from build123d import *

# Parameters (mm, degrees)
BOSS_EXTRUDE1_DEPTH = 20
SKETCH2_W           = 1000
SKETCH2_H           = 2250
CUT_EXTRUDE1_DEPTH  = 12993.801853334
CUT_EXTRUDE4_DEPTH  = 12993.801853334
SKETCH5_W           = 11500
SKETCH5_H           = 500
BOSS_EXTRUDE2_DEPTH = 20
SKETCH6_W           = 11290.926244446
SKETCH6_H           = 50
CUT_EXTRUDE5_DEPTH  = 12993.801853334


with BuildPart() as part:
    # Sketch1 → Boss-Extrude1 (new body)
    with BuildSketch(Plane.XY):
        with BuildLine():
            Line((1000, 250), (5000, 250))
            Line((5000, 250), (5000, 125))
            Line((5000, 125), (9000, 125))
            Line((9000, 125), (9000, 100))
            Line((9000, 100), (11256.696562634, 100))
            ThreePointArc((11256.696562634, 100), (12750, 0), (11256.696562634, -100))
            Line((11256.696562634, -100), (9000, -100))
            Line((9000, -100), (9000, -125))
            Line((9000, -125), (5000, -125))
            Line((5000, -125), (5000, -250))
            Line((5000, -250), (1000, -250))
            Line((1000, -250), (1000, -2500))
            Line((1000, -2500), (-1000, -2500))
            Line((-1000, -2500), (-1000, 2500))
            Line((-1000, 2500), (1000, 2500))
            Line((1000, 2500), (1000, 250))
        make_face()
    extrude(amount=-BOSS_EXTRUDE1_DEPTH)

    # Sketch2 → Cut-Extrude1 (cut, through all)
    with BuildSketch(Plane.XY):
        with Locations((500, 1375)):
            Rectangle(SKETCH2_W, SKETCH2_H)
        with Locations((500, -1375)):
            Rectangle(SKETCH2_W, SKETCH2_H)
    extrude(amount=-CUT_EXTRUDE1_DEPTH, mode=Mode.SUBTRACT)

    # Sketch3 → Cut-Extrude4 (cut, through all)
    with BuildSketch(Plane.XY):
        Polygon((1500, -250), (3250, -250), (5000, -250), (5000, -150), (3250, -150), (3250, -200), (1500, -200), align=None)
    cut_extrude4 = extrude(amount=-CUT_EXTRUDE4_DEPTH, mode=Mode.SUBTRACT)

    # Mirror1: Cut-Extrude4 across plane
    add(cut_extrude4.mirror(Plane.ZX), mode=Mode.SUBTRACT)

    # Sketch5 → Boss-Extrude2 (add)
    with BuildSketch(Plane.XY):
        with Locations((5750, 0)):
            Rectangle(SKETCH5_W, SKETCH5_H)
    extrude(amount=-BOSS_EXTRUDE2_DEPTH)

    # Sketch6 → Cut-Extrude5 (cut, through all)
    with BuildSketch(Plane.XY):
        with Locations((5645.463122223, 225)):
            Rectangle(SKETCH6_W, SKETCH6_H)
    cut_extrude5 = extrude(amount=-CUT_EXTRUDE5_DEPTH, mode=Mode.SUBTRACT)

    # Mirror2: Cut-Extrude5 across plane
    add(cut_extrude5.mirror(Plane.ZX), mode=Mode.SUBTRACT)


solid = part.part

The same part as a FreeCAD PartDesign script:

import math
import FreeCAD as App
import Part
import Sketcher

V = App.Vector


def add_polygon(sketch, points):
    """Adds a closed chain of lines whose ends are joined by coincident constraints."""
    first, n = sketch.GeometryCount, len(points)
    for a, b in zip(points, points[1:] + points[:1]):
        sketch.addGeometry(Part.LineSegment(App.Vector(*a, 0), App.Vector(*b, 0)), False)
    for i in range(n):
        sketch.addConstraint(Sketcher.Constraint("Coincident", first + i, 2, first + (i + 1) % n, 1))

doc = App.newDocument("Part")
body = doc.addObject("PartDesign::Body", "Body")

sketch1 = doc.addObject("Sketcher::SketchObject", "Sketch")
body.addObject(sketch1)
sketch1.AttachmentSupport = (doc.XY_Plane, [""])
sketch1.MapMode = "FlatFace"
sketch1.addGeometry(Part.LineSegment(V(5000, 250, 0), V(1000, 250, 0)), False)
sketch1.addGeometry(Part.LineSegment(V(1000, 250, 0), V(1000, 2500, 0)), False)
sketch1.addGeometry(Part.LineSegment(V(1000, 2500, 0), V(-1000, 2500, 0)), False)
sketch1.addGeometry(Part.LineSegment(V(-1000, 2500, 0), V(-1000, -2500, 0)), False)
sketch1.addGeometry(Part.LineSegment(V(-1000, -2500, 0), V(1000, -2500, 0)), False)
sketch1.addGeometry(Part.LineSegment(V(1000, -2500, 0), V(1000, -250, 0)), False)
sketch1.addGeometry(Part.LineSegment(V(1000, -250, 0), V(5000, -250, 0)), False)
sketch1.addGeometry(Part.LineSegment(V(5000, -250, 0), V(5000, -125, 0)), False)
sketch1.addGeometry(Part.LineSegment(V(5000, -125, 0), V(9000, -125, 0)), False)
sketch1.addGeometry(Part.LineSegment(V(9000, -125, 0), V(9000, -100, 0)), False)
sketch1.addGeometry(Part.LineSegment(V(9000, -100, 0), V(11257, -100, 0)), False)
sketch1.addGeometry(Part.ArcOfCircle(Part.Circle(V(12000, 0, 0), V(0, 0, 1), 750), math.radians(-172), math.radians(172)), False)
sketch1.addGeometry(Part.LineSegment(V(11257, 100, 0), V(9000, 100, 0)), False)
sketch1.addGeometry(Part.LineSegment(V(9000, 100, 0), V(9000, 125, 0)), False)
sketch1.addGeometry(Part.LineSegment(V(9000, 125, 0), V(5000, 125, 0)), False)
sketch1.addGeometry(Part.LineSegment(V(5000, 125, 0), V(5000, 250, 0)), False)
sketch1.addConstraint(Sketcher.Constraint("Coincident", 0, 2, 1, 1))
sketch1.addConstraint(Sketcher.Constraint("Coincident", 1, 2, 2, 1))
sketch1.addConstraint(Sketcher.Constraint("Coincident", 2, 2, 3, 1))
sketch1.addConstraint(Sketcher.Constraint("Coincident", 3, 2, 4, 1))
sketch1.addConstraint(Sketcher.Constraint("Coincident", 4, 2, 5, 1))
sketch1.addConstraint(Sketcher.Constraint("Coincident", 5, 2, 6, 1))
sketch1.addConstraint(Sketcher.Constraint("Coincident", 6, 2, 7, 1))
sketch1.addConstraint(Sketcher.Constraint("Coincident", 7, 2, 8, 1))
sketch1.addConstraint(Sketcher.Constraint("Coincident", 8, 2, 9, 1))
sketch1.addConstraint(Sketcher.Constraint("Coincident", 9, 2, 10, 1))
sketch1.addConstraint(Sketcher.Constraint("Coincident", 10, 2, 11, 1))
sketch1.addConstraint(Sketcher.Constraint("Coincident", 11, 2, 12, 1))
sketch1.addConstraint(Sketcher.Constraint("Coincident", 12, 2, 13, 1))
sketch1.addConstraint(Sketcher.Constraint("Coincident", 13, 2, 14, 1))
sketch1.addConstraint(Sketcher.Constraint("Coincident", 14, 2, 15, 1))
sketch1.addConstraint(Sketcher.Constraint("Coincident", 15, 2, 0, 1))
sketch1.addConstraint(Sketcher.Constraint("Horizontal", 0))
sketch1.addConstraint(Sketcher.Constraint("Vertical", 1))
sketch1.addConstraint(Sketcher.Constraint("Horizontal", 2))
sketch1.addConstraint(Sketcher.Constraint("Vertical", 3))
sketch1.addConstraint(Sketcher.Constraint("Horizontal", 4))
sketch1.addConstraint(Sketcher.Constraint("Vertical", 5))
sketch1.addConstraint(Sketcher.Constraint("Horizontal", 6))
sketch1.addConstraint(Sketcher.Constraint("Vertical", 7))
sketch1.addConstraint(Sketcher.Constraint("Horizontal", 8))
sketch1.addConstraint(Sketcher.Constraint("Vertical", 9))
sketch1.addConstraint(Sketcher.Constraint("Horizontal", 10))
sketch1.addConstraint(Sketcher.Constraint("Horizontal", 12))
sketch1.addConstraint(Sketcher.Constraint("Vertical", 13))
sketch1.addConstraint(Sketcher.Constraint("Horizontal", 14))
sketch1.addConstraint(Sketcher.Constraint("Vertical", 15))
sketch1.addConstraint(Sketcher.Constraint("Symmetric", 1, 2, 3, 2, -1, 1))
sketch1.addConstraint(Sketcher.Constraint("Symmetric", 0, 2, 5, 2, -1))
sketch1.addConstraint(Sketcher.Constraint("Symmetric", 9, 2, 12, 2, -1))
sketch1.addConstraint(Sketcher.Constraint("Symmetric", 7, 2, 14, 2, -1))
sketch1.addConstraint(Sketcher.Constraint("PointOnObject", 11, 3, -1))
sketch1.addConstraint(Sketcher.Constraint("Equal", 6, 8))
sketch1.addConstraint(Sketcher.Constraint("Radius", 11, 750.0))
sketch1.addConstraint(Sketcher.Constraint("DistanceX", 0, 2, 0, 1, 4000.0))
sketch1.addConstraint(Sketcher.Constraint("DistanceX", 2, 2, 2, 1, 2000.0))
sketch1.addConstraint(Sketcher.Constraint("DistanceY", 1, 1, 1, 2, 2250.0))
sketch1.addConstraint(Sketcher.Constraint("DistanceY", 3, 2, 3, 1, 5000.0))
sketch1.addConstraint(Sketcher.Constraint("DistanceY", 7, 1, 7, 2, 125.0))
sketch1.addConstraint(Sketcher.Constraint("DistanceY", 9, 1, 9, 2, 25.0))
sketch1.addConstraint(Sketcher.Constraint("DistanceX", -1, 1, 11, 3, 12000.0))
pad1 = doc.addObject("PartDesign::Pad", "Pad")
body.addObject(pad1)
pad1.Profile = sketch1
pad1.Length = 20
pad1.Reversed = True

sketch2 = doc.addObject("Sketcher::SketchObject", "Sketch001")
body.addObject(sketch2)
sketch2.AttachmentSupport = (doc.XY_Plane, [""])
sketch2.MapMode = "FlatFace"
add_polygon(sketch2, [(0, 2500), (0, 250), (1000, 250), (1000, 2500)])
add_polygon(sketch2, [(0, -250), (0, -2500), (1000, -2500), (1000, -250)])
sketch2.addConstraint(Sketcher.Constraint("Vertical", 0))
sketch2.addConstraint(Sketcher.Constraint("Horizontal", 1))
sketch2.addConstraint(Sketcher.Constraint("Vertical", 2))
sketch2.addConstraint(Sketcher.Constraint("Horizontal", 3))
sketch2.addConstraint(Sketcher.Constraint("Vertical", 4))
sketch2.addConstraint(Sketcher.Constraint("Horizontal", 5))
sketch2.addConstraint(Sketcher.Constraint("Vertical", 6))
sketch2.addConstraint(Sketcher.Constraint("Horizontal", 7))
sketch2.addConstraint(Sketcher.Constraint("Symmetric", 3, 2, 4, 2, -1, 1))
sketch2.addConstraint(Sketcher.Constraint("Symmetric", 1, 2, 6, 2, -1))
sketch2.addConstraint(Sketcher.Constraint("PointOnObject", 0, 2, -2))
sketch2.addConstraint(Sketcher.Constraint("DistanceX", 1, 1, 1, 2, 1000.0))
sketch2.addConstraint(Sketcher.Constraint("DistanceY", 0, 2, 0, 1, 2250.0))
sketch2.addConstraint(Sketcher.Constraint("DistanceY", -1, 1, 0, 2, 250.0))
pocket1 = doc.addObject("PartDesign::Pocket", "Pocket")
body.addObject(pocket1)
pocket1.Profile = sketch2
pocket1.Type = "ThroughAll"

sketch3 = doc.addObject("Sketcher::SketchObject", "Sketch002")
body.addObject(sketch3)
sketch3.AttachmentSupport = (doc.XY_Plane, [""])
sketch3.MapMode = "FlatFace"
add_polygon(sketch3, [(1500, -250), (5000, -250), (5000, -150), (3250, -150), (3250, -200), (1500, -200)])
sketch3.addConstraint(Sketcher.Constraint("Horizontal", 0))
sketch3.addConstraint(Sketcher.Constraint("Vertical", 1))
sketch3.addConstraint(Sketcher.Constraint("Horizontal", 2))
sketch3.addConstraint(Sketcher.Constraint("Vertical", 3))
sketch3.addConstraint(Sketcher.Constraint("Horizontal", 4))
sketch3.addConstraint(Sketcher.Constraint("Vertical", 5))
sketch3.addConstraint(Sketcher.Constraint("Equal", 2, 4))
sketch3.addConstraint(Sketcher.Constraint("Equal", 3, 5))
sketch3.addConstraint(Sketcher.Constraint("DistanceX", 0, 1, 0, 2, 3500.0))
sketch3.addConstraint(Sketcher.Constraint("DistanceY", 1, 1, 1, 2, 100.0))
sketch3.addConstraint(Sketcher.Constraint("DistanceX", -1, 1, 0, 2, 5000.0))
sketch3.addConstraint(Sketcher.Constraint("DistanceY", 0, 2, -1, 1, 250.0))
pocket2 = doc.addObject("PartDesign::Pocket", "Pocket001")
body.addObject(pocket2)
pocket2.Profile = sketch3
pocket2.Type = "ThroughAll"
doc.recompute()

mirrored = doc.addObject("PartDesign::Mirrored", "Mirrored")
body.addObject(mirrored)
mirrored.Originals = [pocket2]
mirrored.MirrorPlane = (doc.XZ_Plane, [""])
body.Tip = mirrored

sketch4 = doc.addObject("Sketcher::SketchObject", "Sketch003")
body.addObject(sketch4)
sketch4.AttachmentSupport = (doc.XY_Plane, [""])
sketch4.MapMode = "FlatFace"
add_polygon(sketch4, [(0, 250), (0, -250), (11500, -250), (11500, 250)])
sketch4.addConstraint(Sketcher.Constraint("Vertical", 0))
sketch4.addConstraint(Sketcher.Constraint("Horizontal", 1))
sketch4.addConstraint(Sketcher.Constraint("Vertical", 2))
sketch4.addConstraint(Sketcher.Constraint("Horizontal", 3))
sketch4.addConstraint(Sketcher.Constraint("Symmetric", 0, 2, 3, 2, -1, 1))
sketch4.addConstraint(Sketcher.Constraint("DistanceX", 1, 1, 1, 2, 11500.0))
sketch4.addConstraint(Sketcher.Constraint("DistanceY", 0, 2, 0, 1, 500.0))
pad2 = doc.addObject("PartDesign::Pad", "Pad001")
body.addObject(pad2)
pad2.Profile = sketch4
pad2.Length = 20
pad2.Reversed = True

sketch5 = doc.addObject("Sketcher::SketchObject", "Sketch004")
body.addObject(sketch5)
sketch5.AttachmentSupport = (doc.XY_Plane, [""])
sketch5.MapMode = "FlatFace"
add_polygon(sketch5, [(0, 250), (0, 200), (11291, 200), (11291, 250)])
sketch5.addConstraint(Sketcher.Constraint("Vertical", 0))
sketch5.addConstraint(Sketcher.Constraint("Horizontal", 1))
sketch5.addConstraint(Sketcher.Constraint("Vertical", 2))
sketch5.addConstraint(Sketcher.Constraint("Horizontal", 3))
sketch5.addConstraint(Sketcher.Constraint("PointOnObject", 0, 2, -2))
sketch5.addConstraint(Sketcher.Constraint("DistanceY", 0, 2, 0, 1, 50.0))
sketch5.addConstraint(Sketcher.Constraint("DistanceY", -1, 1, 0, 2, 200.0))
sketch5.addConstraint(Sketcher.Constraint("DistanceX", 1, 1, 1, 2, 11290.926244))
pocket3 = doc.addObject("PartDesign::Pocket", "Pocket002")
body.addObject(pocket3)
pocket3.Profile = sketch5
pocket3.Type = "ThroughAll"
doc.recompute()

mirrored2 = doc.addObject("PartDesign::Mirrored", "Mirrored001")
body.addObject(mirrored2)
mirrored2.Originals = [pocket3]
mirrored2.MirrorPlane = (doc.XZ_Plane, [""])
body.Tip = mirrored2

doc.recompute()
